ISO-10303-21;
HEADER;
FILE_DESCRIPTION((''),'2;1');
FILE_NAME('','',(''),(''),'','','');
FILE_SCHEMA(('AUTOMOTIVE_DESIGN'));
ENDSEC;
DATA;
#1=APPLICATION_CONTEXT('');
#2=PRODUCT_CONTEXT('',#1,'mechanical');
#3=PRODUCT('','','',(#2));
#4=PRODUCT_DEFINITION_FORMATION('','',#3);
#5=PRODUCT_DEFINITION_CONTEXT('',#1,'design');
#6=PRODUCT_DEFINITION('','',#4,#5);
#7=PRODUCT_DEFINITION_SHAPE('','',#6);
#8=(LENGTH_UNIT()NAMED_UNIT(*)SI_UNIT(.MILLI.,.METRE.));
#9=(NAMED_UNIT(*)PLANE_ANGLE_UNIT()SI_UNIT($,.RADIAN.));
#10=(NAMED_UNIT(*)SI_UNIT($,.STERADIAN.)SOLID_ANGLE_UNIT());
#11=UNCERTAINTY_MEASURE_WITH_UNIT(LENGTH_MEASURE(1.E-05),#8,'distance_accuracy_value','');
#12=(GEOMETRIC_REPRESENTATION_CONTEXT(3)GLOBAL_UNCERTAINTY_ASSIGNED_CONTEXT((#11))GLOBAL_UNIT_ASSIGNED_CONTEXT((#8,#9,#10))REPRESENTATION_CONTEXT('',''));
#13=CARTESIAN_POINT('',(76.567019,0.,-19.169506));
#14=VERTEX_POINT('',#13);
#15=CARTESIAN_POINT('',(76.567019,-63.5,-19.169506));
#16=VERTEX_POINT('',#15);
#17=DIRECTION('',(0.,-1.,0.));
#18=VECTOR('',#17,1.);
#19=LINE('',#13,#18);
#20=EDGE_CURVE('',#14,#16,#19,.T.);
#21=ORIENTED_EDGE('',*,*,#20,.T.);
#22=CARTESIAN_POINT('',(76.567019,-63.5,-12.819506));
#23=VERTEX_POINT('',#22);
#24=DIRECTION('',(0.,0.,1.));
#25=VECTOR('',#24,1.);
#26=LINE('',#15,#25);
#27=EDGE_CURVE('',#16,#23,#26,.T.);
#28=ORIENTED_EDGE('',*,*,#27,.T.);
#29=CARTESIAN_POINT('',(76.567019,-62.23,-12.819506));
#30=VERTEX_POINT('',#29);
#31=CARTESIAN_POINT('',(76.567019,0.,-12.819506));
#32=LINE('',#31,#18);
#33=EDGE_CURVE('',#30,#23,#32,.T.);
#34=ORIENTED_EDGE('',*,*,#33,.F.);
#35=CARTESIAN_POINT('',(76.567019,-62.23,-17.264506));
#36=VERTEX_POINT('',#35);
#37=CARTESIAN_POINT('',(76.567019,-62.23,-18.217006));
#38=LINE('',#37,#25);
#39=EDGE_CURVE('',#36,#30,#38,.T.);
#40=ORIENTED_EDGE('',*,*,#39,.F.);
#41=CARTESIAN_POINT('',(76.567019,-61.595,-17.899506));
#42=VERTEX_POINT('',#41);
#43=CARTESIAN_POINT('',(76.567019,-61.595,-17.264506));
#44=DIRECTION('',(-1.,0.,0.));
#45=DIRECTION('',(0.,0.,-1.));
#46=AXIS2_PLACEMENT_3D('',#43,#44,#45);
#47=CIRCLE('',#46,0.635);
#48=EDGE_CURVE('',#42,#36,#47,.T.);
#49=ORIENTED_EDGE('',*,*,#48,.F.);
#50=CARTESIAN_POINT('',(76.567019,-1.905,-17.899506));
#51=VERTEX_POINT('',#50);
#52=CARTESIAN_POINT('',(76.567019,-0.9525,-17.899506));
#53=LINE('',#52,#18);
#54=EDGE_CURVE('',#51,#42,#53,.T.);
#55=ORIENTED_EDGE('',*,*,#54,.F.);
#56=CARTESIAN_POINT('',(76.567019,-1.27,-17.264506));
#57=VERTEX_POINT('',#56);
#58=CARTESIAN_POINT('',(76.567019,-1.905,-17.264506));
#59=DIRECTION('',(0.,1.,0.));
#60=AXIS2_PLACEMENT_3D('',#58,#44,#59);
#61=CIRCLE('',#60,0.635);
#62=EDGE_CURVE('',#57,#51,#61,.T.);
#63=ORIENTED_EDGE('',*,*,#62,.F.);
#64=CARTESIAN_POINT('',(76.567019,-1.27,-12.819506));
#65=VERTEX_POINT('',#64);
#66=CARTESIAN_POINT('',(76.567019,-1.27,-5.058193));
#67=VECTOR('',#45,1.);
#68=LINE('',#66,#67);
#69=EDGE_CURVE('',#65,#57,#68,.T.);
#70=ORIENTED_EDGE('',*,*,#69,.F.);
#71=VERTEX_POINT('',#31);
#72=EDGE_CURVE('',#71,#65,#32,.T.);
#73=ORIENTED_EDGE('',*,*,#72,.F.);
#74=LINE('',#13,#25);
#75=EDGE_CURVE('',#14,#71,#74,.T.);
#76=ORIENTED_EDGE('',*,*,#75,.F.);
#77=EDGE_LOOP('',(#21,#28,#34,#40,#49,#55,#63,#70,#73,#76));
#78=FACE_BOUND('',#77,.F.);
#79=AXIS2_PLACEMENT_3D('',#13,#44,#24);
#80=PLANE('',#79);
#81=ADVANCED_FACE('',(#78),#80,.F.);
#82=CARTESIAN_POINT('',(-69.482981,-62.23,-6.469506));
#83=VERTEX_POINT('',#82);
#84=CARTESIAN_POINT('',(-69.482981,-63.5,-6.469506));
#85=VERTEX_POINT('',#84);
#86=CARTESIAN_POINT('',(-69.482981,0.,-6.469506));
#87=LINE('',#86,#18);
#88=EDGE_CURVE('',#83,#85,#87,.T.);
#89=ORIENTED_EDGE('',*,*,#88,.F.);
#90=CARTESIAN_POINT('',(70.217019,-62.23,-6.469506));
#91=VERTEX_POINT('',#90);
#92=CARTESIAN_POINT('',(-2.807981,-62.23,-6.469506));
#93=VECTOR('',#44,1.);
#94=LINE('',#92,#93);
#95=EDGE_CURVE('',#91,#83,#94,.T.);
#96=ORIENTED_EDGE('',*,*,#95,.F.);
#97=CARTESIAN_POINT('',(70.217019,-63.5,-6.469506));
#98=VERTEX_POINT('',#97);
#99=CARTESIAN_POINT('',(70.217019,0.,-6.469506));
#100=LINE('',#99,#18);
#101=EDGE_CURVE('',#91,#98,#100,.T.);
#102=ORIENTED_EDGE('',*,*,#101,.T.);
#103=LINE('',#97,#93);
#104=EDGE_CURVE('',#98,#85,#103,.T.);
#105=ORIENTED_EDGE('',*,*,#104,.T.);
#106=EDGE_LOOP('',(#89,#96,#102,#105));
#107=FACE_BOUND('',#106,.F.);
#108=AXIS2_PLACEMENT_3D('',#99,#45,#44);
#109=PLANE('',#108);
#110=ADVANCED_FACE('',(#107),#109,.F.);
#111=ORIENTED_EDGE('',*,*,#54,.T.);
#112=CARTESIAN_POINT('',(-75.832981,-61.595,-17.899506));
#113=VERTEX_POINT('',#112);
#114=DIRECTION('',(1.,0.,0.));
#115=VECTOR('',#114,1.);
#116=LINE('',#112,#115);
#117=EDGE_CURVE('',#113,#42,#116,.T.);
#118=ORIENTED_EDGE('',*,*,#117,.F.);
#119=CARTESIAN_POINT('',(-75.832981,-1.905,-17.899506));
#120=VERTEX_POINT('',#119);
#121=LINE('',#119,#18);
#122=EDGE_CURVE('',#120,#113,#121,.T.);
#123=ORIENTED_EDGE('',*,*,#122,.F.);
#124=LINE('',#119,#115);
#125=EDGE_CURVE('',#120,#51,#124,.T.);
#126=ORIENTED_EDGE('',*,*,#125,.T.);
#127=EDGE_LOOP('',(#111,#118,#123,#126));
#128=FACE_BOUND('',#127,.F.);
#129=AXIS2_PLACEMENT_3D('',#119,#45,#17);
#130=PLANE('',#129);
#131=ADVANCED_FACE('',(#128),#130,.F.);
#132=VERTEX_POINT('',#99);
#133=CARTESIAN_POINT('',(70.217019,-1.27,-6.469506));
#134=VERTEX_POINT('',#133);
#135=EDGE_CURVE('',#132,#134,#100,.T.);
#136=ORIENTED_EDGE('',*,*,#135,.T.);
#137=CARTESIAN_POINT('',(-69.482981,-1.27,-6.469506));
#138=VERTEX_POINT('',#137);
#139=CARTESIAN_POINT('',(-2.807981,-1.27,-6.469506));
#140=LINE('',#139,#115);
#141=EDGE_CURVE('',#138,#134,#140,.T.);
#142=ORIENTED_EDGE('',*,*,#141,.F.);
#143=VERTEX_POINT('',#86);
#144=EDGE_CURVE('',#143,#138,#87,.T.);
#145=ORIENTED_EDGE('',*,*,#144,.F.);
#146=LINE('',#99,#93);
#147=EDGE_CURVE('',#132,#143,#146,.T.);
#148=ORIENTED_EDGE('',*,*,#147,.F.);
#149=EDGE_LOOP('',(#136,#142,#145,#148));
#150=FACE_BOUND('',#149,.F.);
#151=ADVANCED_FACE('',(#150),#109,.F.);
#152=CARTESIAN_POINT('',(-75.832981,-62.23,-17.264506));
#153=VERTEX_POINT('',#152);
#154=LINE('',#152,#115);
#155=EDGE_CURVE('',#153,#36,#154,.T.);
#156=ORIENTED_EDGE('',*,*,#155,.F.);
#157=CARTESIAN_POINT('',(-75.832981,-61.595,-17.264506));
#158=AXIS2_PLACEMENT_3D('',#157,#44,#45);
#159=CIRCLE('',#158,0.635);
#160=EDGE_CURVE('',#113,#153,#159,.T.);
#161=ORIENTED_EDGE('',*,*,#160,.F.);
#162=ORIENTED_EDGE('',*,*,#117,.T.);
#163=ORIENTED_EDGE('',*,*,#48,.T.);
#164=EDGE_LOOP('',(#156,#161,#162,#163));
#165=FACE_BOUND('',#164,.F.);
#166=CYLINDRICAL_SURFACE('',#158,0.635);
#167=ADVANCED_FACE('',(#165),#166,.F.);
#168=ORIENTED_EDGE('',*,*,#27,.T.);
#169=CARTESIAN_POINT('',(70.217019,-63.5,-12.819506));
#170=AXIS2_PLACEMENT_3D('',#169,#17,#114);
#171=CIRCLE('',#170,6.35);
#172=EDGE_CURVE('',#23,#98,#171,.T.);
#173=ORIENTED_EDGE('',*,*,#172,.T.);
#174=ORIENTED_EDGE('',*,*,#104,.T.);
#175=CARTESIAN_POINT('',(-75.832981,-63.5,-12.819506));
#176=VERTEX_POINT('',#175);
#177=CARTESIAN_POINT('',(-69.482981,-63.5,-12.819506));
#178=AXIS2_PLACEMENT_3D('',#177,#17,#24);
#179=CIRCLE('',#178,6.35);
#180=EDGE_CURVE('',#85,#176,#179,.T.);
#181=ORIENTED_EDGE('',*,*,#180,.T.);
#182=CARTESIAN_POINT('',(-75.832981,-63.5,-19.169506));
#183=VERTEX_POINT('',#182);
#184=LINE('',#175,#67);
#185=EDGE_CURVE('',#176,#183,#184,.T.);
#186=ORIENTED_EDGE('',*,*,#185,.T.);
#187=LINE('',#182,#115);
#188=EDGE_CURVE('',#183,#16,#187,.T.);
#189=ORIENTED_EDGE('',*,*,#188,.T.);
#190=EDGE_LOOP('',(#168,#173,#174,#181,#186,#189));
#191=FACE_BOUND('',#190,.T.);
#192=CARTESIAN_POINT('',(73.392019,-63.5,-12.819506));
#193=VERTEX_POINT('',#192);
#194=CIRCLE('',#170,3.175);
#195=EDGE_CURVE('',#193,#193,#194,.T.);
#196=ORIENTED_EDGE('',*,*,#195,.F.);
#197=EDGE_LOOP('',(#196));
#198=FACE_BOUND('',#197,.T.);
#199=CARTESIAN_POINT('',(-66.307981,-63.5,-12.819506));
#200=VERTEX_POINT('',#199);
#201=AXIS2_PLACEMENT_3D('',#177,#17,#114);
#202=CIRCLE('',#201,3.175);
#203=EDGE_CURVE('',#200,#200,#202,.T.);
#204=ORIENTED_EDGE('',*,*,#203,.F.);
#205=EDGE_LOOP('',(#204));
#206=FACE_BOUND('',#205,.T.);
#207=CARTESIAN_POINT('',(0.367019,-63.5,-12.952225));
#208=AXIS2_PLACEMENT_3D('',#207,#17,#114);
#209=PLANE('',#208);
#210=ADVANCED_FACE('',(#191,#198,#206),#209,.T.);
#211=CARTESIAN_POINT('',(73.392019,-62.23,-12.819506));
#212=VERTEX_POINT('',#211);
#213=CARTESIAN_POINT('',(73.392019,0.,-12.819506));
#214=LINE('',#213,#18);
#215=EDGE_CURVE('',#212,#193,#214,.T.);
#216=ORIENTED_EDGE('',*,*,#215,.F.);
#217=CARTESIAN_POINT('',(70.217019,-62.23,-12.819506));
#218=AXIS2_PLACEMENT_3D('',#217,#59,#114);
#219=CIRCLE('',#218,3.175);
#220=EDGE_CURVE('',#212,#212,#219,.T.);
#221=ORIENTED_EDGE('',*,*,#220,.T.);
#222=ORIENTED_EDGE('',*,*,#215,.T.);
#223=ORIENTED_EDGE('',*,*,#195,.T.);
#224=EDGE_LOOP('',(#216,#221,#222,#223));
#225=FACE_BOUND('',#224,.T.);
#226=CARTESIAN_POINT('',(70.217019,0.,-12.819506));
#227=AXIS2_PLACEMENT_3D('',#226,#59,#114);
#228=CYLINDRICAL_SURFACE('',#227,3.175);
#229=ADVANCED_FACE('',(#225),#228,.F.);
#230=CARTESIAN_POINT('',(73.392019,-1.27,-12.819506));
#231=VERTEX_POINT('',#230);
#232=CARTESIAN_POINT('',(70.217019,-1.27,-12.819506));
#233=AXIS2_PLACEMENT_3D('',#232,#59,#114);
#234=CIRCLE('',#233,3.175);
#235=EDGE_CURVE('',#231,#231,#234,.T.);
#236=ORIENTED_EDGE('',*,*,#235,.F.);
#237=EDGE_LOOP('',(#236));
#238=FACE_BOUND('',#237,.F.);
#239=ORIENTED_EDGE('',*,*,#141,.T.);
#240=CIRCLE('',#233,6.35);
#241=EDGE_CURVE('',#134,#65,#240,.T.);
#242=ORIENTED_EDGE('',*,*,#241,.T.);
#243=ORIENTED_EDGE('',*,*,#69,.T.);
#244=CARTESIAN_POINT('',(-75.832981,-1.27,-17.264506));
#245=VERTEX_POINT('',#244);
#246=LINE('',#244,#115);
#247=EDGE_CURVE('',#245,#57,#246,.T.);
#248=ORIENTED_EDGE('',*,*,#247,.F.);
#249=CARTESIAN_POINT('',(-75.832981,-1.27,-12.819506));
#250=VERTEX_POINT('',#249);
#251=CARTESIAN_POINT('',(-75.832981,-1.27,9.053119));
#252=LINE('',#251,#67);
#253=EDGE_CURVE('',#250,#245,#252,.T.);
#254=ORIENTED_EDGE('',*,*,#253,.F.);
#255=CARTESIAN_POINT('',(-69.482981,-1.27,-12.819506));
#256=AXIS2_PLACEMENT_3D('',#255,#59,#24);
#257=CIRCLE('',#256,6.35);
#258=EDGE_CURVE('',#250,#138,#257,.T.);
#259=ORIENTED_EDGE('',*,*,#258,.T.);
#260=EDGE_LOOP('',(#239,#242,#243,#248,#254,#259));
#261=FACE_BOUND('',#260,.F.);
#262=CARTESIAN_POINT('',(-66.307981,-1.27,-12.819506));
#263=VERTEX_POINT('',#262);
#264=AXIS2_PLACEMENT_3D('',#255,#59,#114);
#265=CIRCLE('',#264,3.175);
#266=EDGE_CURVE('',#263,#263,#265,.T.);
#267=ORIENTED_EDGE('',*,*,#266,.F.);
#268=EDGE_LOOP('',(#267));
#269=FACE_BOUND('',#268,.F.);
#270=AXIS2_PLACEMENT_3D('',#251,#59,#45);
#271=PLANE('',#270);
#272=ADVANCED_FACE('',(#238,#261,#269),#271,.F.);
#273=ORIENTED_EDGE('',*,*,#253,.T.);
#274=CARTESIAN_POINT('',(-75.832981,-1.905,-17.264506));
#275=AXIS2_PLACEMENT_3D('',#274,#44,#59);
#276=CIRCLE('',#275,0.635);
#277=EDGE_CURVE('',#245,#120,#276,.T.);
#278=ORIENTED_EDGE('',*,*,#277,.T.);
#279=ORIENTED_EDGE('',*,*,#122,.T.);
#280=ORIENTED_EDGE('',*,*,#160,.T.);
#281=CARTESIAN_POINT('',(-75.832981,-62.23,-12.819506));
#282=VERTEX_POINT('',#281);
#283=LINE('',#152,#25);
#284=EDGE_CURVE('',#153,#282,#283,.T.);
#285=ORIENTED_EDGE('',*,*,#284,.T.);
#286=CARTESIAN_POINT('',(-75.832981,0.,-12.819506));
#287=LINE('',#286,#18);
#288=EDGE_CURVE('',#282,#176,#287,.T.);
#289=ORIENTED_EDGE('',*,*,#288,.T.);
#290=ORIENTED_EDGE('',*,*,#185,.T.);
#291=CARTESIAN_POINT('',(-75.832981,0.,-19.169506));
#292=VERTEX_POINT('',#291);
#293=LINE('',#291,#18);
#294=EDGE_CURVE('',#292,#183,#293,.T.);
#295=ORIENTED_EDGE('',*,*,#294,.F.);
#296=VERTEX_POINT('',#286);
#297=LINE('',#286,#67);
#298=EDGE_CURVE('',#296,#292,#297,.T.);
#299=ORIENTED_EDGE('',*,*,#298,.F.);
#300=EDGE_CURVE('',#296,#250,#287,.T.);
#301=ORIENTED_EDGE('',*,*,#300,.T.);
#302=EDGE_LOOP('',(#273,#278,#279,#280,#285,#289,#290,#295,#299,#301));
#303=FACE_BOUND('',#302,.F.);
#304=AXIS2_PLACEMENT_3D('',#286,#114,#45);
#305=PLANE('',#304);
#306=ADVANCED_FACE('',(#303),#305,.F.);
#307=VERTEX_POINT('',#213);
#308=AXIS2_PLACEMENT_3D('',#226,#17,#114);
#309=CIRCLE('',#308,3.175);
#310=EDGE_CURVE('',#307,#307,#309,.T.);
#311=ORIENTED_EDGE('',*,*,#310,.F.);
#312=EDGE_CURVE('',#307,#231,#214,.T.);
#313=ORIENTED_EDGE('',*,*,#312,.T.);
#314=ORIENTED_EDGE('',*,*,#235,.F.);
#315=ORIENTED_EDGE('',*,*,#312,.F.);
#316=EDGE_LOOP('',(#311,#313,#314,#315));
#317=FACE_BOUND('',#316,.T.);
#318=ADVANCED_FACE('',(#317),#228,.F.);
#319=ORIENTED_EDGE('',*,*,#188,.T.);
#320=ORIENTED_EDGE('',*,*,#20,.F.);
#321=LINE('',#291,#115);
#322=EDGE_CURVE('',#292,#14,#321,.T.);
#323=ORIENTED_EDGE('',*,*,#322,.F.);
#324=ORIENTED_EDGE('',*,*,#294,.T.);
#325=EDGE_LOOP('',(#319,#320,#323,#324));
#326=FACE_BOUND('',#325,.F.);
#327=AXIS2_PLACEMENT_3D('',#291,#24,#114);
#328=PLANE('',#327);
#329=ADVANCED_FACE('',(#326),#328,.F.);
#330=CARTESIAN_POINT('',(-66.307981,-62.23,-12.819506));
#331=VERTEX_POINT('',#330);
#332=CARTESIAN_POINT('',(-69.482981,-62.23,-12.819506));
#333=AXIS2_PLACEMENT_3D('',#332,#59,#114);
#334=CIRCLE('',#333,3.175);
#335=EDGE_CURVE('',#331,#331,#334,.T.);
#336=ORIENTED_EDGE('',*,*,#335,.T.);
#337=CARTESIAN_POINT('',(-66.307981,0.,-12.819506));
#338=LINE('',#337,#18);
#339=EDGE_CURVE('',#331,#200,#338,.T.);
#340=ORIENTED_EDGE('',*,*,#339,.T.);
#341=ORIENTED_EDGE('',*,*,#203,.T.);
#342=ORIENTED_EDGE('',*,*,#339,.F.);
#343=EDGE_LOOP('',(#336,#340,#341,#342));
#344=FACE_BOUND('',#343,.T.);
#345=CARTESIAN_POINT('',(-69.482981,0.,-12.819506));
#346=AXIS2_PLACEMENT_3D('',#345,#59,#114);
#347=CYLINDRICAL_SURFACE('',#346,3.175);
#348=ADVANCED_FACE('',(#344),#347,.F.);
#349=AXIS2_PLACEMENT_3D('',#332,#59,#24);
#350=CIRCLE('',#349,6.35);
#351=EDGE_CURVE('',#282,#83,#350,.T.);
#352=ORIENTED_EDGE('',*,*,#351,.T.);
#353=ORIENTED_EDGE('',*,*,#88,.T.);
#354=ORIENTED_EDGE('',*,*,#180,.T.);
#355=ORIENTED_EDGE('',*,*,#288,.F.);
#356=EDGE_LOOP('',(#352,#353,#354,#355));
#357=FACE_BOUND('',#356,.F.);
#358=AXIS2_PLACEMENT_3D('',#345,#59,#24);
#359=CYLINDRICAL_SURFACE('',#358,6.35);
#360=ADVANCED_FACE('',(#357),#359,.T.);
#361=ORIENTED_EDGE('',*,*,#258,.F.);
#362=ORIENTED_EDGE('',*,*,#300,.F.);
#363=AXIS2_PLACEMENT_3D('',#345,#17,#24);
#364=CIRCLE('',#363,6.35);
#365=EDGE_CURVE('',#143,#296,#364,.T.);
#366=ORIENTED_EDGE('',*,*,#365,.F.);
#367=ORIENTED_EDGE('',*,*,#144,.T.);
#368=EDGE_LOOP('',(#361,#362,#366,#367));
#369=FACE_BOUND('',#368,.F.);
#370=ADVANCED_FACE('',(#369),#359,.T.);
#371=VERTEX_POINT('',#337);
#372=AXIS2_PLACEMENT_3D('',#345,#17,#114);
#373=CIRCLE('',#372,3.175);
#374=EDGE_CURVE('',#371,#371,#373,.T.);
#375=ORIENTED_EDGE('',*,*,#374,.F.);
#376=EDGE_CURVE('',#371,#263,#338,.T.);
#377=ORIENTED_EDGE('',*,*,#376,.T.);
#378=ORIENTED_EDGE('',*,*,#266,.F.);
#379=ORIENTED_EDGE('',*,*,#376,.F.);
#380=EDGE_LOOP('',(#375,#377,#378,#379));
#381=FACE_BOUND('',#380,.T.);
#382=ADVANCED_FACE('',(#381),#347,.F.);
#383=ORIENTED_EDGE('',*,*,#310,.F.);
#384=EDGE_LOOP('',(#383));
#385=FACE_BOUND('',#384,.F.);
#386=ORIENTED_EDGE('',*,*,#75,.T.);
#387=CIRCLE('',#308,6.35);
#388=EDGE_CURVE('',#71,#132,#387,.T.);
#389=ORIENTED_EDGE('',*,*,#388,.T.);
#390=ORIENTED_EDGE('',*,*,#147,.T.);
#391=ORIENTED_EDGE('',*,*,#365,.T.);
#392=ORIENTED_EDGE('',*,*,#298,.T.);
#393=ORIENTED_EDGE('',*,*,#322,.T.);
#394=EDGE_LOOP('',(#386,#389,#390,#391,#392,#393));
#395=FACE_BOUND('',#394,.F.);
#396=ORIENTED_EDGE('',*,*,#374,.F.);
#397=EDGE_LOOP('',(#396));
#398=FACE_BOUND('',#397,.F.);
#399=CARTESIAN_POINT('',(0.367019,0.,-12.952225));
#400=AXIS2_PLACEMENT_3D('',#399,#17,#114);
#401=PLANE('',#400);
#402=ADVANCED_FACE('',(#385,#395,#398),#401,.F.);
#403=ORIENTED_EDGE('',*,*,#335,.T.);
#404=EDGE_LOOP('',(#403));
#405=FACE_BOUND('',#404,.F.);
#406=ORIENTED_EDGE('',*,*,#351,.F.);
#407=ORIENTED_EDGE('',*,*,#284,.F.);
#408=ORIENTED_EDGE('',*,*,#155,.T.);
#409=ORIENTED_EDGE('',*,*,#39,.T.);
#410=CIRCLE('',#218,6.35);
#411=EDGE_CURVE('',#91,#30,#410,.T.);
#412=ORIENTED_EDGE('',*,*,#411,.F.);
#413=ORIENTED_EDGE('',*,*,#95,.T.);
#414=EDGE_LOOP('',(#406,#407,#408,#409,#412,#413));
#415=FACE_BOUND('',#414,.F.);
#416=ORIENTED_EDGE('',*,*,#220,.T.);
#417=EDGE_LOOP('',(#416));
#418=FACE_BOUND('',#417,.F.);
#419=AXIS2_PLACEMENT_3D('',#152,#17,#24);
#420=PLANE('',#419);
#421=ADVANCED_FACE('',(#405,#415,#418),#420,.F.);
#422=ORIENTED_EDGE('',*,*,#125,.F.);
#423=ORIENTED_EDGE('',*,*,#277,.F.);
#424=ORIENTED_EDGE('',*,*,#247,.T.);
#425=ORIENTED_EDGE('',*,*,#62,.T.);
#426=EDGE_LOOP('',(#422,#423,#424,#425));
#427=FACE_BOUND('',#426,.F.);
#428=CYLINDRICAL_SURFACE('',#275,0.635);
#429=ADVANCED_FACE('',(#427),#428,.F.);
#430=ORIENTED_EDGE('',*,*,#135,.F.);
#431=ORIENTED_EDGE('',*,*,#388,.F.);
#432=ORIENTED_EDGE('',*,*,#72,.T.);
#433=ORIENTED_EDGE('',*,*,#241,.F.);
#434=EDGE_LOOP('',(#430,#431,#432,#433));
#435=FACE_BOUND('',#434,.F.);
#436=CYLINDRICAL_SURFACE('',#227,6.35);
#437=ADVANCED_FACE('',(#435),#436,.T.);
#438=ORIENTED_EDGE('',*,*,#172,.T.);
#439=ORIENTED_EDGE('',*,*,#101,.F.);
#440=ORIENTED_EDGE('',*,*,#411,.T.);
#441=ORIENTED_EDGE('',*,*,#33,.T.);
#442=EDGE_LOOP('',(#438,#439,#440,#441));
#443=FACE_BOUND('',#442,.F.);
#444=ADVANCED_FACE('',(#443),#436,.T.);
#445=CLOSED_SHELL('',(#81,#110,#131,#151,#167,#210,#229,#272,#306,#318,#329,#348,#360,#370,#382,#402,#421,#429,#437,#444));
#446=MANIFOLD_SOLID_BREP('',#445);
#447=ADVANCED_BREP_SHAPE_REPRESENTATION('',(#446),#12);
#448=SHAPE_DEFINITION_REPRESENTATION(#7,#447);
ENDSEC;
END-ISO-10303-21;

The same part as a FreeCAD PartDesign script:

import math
import FreeCAD as App
import Part
import Sketcher
Q = App.Units.Quantity

doc = App.newDocument("Part")
body = doc.addObject("PartDesign::Body", "Body")

# Sketch on XZ plane
sketch1 = doc.addObject("Sketcher::SketchObject", "Sketch")
body.addObject(sketch1)
sketch1.AttachmentSupport = (doc.XZ_Plane, [""])
sketch1.MapMode = "FlatFace"
sketch1.addGeometry([
    Part.LineSegment(App.Vector(70.2, -6.5, 0), App.Vector(-69.5, -6.5, 0)),  # 0
    Part.ArcOfCircle(Part.Circle(App.Vector(-69.5, -12.8, 0), App.Vector(0, 0, 1), 6.3), math.radians(90), math.radians(180)),  # 1
    Part.LineSegment(App.Vector(-75.8, -12.8, 0), App.Vector(-75.8, -19.2, 0)),  # 2
    Part.LineSegment(App.Vector(-75.8, -19.2, 0), App.Vector(76.6, -19.2, 0)),  # 3
    Part.LineSegment(App.Vector(76.6, -19.2, 0), App.Vector(76.6, -12.8, 0)),  # 4
    Part.ArcOfCircle(Part.Circle(App.Vector(70.2, -12.8, 0), App.Vector(0, 0, 1), 6.3), math.radians(0), math.radians(90)),  # 5
    Part.Circle(App.Vector(-69.5, -12.8, 0), App.Vector(0, 0, 1), 3.2),  # 6
    Part.Circle(App.Vector(70.2, -12.8, 0), App.Vector(0, 0, 1), 3.2),  # 7
], False)
sketch1.addConstraint([
    Sketcher.Constraint("Tangent", 0, 2, 1, 1),
    Sketcher.Constraint("Tangent", 1, 2, 2, 1),
    Sketcher.Constraint("Coincident", 2, 2, 3, 1),
    Sketcher.Constraint("Coincident", 3, 2, 4, 1),
    Sketcher.Constraint("Tangent", 4, 2, 5, 1),
    Sketcher.Constraint("Tangent", 5, 2, 0, 1),
    Sketcher.Constraint("Horizontal", 0),
    Sketcher.Constraint("Vertical", 2),
    Sketcher.Constraint("Horizontal", 3),
    Sketcher.Constraint("Vertical", 4),
    Sketcher.Constraint("Coincident", 6, 3, 1, 3),
    Sketcher.Constraint("Coincident", 7, 3, 5, 3),
    Sketcher.Constraint("Equal", 1, 5),
    Sketcher.Constraint("Equal", 6, 7),
    Sketcher.Constraint("Diameter", 6, Q("0.25 in")),
    Sketcher.Constraint("DistanceX", 3, 1, 3, 2, Q("6 in")),
    Sketcher.Constraint("Radius", 1, Q("0.25 in")),
    Sketcher.Constraint("DistanceY", 2, 2, 2, 1, Q("0.25 in")),
    Sketcher.Constraint("DistanceX", 1, 3, -1, 1, Q("69.482981 mm")),
    Sketcher.Constraint("DistanceY", 1, 3, -1, 1, Q("12.819506 mm")),
])
pad1 = doc.addObject("PartDesign::Pad", "Pad")
body.addObject(pad1)
pad1.Profile = sketch1
pad1.Length = Q("2.5 in")

# Sketch on YZ plane
sketch2 = doc.addObject("Sketcher::SketchObject", "Sketch001")
body.addObject(sketch2)
sketch2.AttachmentSupport = (doc.YZ_Plane, [""])
sketch2.MapMode = "FlatFace"
sketch2.AttachmentOffset = App.Placement(App.Vector(0, 0, -75.832981), App.Rotation())
sketch2.addGeometry([
    Part.LineSegment(App.Vector(-1.3, 9.1, 0), App.Vector(-1.3, -17.3, 0)),  # 0
    Part.ArcOfCircle(Part.Circle(App.Vector(-1.9, -17.3, 0), App.Vector(0, 0, 1), 0.6), math.radians(-90), math.radians(0)),  # 1
    Part.LineSegment(App.Vector(-1.9, -17.9, 0), App.Vector(-61.6, -17.9, 0)),  # 2
    Part.ArcOfCircle(Part.Circle(App.Vector(-61.6, -17.3, 0), App.Vector(0, 0, 1), 0.6), math.radians(180), math.radians(270)),  # 3
    Part.LineSegment(App.Vector(-62.2, -17.3, 0), App.Vector(-62.2, 9.1, 0)),  # 4
    Part.LineSegment(App.Vector(-62.2, 9.1, 0), App.Vector(-1.3, 9.1, 0)),  # 5
], False)
sketch2.addConstraint([
    Sketcher.Constraint("Tangent", 0, 2, 1, 2),
    Sketcher.Constraint("Tangent", 1, 1, 2, 1),
    Sketcher.Constraint("Tangent", 2, 2, 3, 2),
    Sketcher.Constraint("Tangent", 3, 1, 4, 1),
    Sketcher.Constraint("Coincident", 4, 2, 5, 1),
    Sketcher.Constraint("Coincident", 5, 2, 0, 1),
    Sketcher.Constraint("Vertical", 0),
    Sketcher.Constraint("Horizontal", 2),
    Sketcher.Constraint("Vertical", 4),
    Sketcher.Constraint("Horizontal", 5),
    Sketcher.Constraint("Equal", 1, 3),
    Sketcher.Constraint("DistanceX", 5, 1, 5, 2, Q("2.4 in")),
    Sketcher.Constraint("Radius", 1, Q("0.025 in")),
    Sketcher.Constraint("DistanceX", 0, 2, -1, 1, Q("0.05 in")),
    Sketcher.Constraint("DistanceY", 0, 2, 0, 1, Q("26.317625 mm")),
    Sketcher.Constraint("DistanceY", -1, 1, 4, 2, Q("9.053119 mm")),
])
pocket1 = doc.addObject("PartDesign::Pocket", "Pocket")
body.addObject(pocket1)
pocket1.Profile = sketch2
pocket1.Type = "ThroughAll"
pocket1.Reversed = True

doc.recompute()
